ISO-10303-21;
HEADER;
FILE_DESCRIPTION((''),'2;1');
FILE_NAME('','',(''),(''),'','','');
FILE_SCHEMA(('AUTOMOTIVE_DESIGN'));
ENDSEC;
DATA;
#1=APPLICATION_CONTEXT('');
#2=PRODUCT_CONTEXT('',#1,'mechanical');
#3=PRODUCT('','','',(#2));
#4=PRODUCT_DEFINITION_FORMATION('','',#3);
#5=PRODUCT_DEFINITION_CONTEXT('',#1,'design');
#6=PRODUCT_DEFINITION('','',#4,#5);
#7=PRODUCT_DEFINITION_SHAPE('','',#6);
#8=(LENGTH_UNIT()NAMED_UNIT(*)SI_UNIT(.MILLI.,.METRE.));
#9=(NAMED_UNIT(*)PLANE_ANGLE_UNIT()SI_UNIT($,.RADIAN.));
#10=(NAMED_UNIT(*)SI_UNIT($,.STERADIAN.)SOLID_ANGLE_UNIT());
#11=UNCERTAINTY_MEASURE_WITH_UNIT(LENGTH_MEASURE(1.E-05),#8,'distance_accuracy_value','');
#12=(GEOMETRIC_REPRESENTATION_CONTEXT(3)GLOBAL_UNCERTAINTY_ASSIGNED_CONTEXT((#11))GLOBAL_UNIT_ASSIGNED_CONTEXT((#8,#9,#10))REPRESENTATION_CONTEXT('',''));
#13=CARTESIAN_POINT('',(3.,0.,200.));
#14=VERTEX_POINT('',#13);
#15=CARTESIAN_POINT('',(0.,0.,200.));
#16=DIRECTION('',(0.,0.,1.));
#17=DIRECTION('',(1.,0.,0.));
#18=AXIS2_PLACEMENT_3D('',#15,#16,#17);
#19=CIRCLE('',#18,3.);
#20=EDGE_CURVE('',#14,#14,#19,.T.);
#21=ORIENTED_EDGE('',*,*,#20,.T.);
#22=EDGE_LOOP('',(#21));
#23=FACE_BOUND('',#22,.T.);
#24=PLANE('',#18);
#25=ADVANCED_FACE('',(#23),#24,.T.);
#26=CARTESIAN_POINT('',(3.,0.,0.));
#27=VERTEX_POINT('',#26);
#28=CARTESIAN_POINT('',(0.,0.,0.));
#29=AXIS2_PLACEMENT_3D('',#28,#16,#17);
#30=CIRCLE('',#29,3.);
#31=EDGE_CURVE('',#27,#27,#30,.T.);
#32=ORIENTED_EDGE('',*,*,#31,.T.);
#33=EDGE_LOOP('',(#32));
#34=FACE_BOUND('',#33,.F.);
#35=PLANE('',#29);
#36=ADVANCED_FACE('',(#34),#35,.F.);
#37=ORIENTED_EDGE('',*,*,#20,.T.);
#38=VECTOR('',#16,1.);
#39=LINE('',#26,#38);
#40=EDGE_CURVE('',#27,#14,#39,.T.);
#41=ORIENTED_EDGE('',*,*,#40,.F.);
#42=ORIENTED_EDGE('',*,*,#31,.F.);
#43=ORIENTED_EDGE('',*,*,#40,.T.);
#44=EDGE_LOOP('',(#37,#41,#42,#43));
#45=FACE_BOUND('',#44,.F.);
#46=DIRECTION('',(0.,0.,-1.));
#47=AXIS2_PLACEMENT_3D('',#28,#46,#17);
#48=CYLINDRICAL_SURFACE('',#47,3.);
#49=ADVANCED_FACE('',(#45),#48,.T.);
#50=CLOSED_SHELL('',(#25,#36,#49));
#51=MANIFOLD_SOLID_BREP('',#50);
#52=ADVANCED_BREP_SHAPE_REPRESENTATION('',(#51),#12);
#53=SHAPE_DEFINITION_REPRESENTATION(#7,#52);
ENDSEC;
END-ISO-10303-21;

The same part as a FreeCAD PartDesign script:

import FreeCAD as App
import Part
import Sketcher
Q = App.Units.Quantity

doc = App.newDocument("Part")
body = doc.addObject("PartDesign::Body", "Body")

# Sketch on XY plane
sketch1 = doc.addObject("Sketcher::SketchObject", "Sketch")
body.addObject(sketch1)
sketch1.AttachmentSupport = (doc.XY_Plane, [""])
sketch1.MapMode = "FlatFace"
sketch1.addGeometry(Part.Circle(App.Vector(0, 0, 0), App.Vector(0, 0, 1), 3), False)
sketch1.addConstraint(Sketcher.Constraint("Coincident", 0, 3, -1, 1))
sketch1.addConstraint(Sketcher.Constraint("Diameter", 0, Q("6 mm")))
pad1 = doc.addObject("PartDesign::Pad", "Pad")
body.addObject(pad1)
pad1.Profile = sketch1
pad1.Length = 200

doc.recompute()
